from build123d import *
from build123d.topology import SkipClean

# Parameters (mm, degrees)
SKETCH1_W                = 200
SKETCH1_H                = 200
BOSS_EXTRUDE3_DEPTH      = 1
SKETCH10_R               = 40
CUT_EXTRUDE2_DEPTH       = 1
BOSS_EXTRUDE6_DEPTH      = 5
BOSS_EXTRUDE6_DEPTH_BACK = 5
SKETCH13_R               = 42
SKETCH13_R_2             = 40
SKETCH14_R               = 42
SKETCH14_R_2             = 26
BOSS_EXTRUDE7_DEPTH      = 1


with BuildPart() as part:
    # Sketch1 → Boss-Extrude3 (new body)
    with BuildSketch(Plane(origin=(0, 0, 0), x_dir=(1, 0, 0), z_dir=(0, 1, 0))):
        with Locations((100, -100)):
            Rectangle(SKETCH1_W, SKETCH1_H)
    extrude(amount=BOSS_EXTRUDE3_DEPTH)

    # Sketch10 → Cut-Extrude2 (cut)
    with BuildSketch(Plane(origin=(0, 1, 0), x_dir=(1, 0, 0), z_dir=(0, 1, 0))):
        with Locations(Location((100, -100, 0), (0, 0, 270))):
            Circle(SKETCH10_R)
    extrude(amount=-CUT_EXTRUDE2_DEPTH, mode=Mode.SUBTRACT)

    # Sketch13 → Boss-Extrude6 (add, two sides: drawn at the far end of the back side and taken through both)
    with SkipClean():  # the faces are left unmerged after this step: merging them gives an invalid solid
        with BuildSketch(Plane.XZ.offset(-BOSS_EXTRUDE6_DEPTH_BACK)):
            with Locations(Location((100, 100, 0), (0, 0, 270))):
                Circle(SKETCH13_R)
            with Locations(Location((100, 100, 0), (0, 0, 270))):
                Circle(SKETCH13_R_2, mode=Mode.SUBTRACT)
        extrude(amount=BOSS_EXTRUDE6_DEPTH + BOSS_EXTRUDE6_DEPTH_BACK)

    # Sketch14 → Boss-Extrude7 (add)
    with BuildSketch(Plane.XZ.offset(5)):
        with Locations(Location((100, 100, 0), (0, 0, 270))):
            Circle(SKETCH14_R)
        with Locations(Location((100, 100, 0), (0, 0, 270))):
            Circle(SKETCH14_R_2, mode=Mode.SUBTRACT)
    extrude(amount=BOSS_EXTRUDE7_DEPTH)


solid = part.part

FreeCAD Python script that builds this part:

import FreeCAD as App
import Part
import Sketcher
from FreeCAD import Vector


def add_polygon(sketch, points):
    """Adds a closed chain of lines whose ends are joined by coincident constraints."""
    first, n = sketch.GeometryCount, len(points)
    for a, b in zip(points, points[1:] + points[:1]):
        sketch.addGeometry(Part.LineSegment(App.Vector(*a, 0), App.Vector(*b, 0)), False)
    for i in range(n):
        sketch.addConstraint(Sketcher.Constraint("Coincident", first + i, 2, first + (i + 1) % n, 1))

doc = App.newDocument("Part")
body = doc.addObject("PartDesign::Body", "Body")

sketch1 = body.newObject("Sketcher::SketchObject", "Sketch")
sketch1.AttachmentSupport = (doc.getObject("XZ_Plane"), [""])
sketch1.MapMode = "FlatFace"
add_polygon(sketch1, [(0, 0), (0, 200), (200, 200), (200, 0)])
sketch1.addConstraint([
    Sketcher.Constraint("Vertical", 0),
    Sketcher.Constraint("Horizontal", 1),
    Sketcher.Constraint("Vertical", 2),
    Sketcher.Constraint("Horizontal", 3),
    Sketcher.Constraint("Coincident", 3, 2, -1, 1),
    Sketcher.Constraint("Equal", 3, 0),
    Sketcher.Constraint("DistanceX", 1, 1, 1, 2, 200.0),
])
pad1 = body.newObject("PartDesign::Pad", "Pad")
pad1.Profile = sketch1
pad1.Length = 1
pad1.Reversed = True

sketch2 = body.newObject("Sketcher::SketchObject", "Sketch001")
sketch2.AttachmentSupport = (doc.getObject("XZ_Plane"), [""])
sketch2.MapMode = "FlatFace"
sketch2.AttachmentOffset = App.Placement(Vector(0, 0, -1), App.Rotation())
sketch2.addGeometry(Part.Circle(Vector(100, 100, 0), Vector(0, 0, 1), 40), False)
sketch2.addConstraint([
    Sketcher.Constraint("Diameter", 0, 80.0),
    Sketcher.Constraint("DistanceX", -1, 1, 0, 3, 100.0),
    Sketcher.Constraint("DistanceY", -1, 1, 0, 3, 100.0),
])
pocket1 = body.newObject("PartDesign::Pocket", "Pocket")
pocket1.Profile = sketch2
pocket1.Length = 1
pocket1.Reversed = True

sketch3 = body.newObject("Sketcher::SketchObject", "Sketch002")
sketch3.AttachmentSupport = (doc.getObject("XZ_Plane"), [""])
sketch3.MapMode = "FlatFace"
sketch3.addGeometry([
    Part.Circle(Vector(100, 100, 0), Vector(0, 0, 1), 42),
    Part.Circle(Vector(100, 100, 0), Vector(0, 0, 1), 40),
], False)
sketch3.addConstraint([
    Sketcher.Constraint("Coincident", 1, 3, 0, 3),
    Sketcher.Constraint("Diameter", 0, 84.0),
    Sketcher.Constraint("Diameter", 1, 80.0),
    Sketcher.Constraint("DistanceX", -1, 1, 0, 3, 100.0),
    Sketcher.Constraint("DistanceY", -1, 1, 0, 3, 100.0),
])
pad2 = body.newObject("PartDesign::Pad", "Pad001")
pad2.Profile = sketch3
pad2.Type = "TwoLengths"
pad2.Length = 5
pad2.Length2 = 5

sketch4 = body.newObject("Sketcher::SketchObject", "Sketch003")
sketch4.AttachmentSupport = (doc.getObject("XZ_Plane"), [""])
sketch4.MapMode = "FlatFace"
sketch4.AttachmentOffset = App.Placement(Vector(0, 0, 5), App.Rotation())
sketch4.addGeometry([
    Part.Circle(Vector(100, 100, 0), Vector(0, 0, 1), 42),
    Part.Circle(Vector(100, 100, 0), Vector(0, 0, 1), 26),
], False)
sketch4.addConstraint([
    Sketcher.Constraint("Coincident", 1, 3, 0, 3),
    Sketcher.Constraint("Diameter", 0, 84.0),
    Sketcher.Constraint("Diameter", 1, 52.0),
    Sketcher.Constraint("DistanceX", -1, 1, 0, 3, 100.0),
    Sketcher.Constraint("DistanceY", -1, 1, 0, 3, 100.0),
])
pad3 = body.newObject("PartDesign::Pad", "Pad002")
pad3.Profile = sketch4
pad3.Length = 1

doc.recompute()
